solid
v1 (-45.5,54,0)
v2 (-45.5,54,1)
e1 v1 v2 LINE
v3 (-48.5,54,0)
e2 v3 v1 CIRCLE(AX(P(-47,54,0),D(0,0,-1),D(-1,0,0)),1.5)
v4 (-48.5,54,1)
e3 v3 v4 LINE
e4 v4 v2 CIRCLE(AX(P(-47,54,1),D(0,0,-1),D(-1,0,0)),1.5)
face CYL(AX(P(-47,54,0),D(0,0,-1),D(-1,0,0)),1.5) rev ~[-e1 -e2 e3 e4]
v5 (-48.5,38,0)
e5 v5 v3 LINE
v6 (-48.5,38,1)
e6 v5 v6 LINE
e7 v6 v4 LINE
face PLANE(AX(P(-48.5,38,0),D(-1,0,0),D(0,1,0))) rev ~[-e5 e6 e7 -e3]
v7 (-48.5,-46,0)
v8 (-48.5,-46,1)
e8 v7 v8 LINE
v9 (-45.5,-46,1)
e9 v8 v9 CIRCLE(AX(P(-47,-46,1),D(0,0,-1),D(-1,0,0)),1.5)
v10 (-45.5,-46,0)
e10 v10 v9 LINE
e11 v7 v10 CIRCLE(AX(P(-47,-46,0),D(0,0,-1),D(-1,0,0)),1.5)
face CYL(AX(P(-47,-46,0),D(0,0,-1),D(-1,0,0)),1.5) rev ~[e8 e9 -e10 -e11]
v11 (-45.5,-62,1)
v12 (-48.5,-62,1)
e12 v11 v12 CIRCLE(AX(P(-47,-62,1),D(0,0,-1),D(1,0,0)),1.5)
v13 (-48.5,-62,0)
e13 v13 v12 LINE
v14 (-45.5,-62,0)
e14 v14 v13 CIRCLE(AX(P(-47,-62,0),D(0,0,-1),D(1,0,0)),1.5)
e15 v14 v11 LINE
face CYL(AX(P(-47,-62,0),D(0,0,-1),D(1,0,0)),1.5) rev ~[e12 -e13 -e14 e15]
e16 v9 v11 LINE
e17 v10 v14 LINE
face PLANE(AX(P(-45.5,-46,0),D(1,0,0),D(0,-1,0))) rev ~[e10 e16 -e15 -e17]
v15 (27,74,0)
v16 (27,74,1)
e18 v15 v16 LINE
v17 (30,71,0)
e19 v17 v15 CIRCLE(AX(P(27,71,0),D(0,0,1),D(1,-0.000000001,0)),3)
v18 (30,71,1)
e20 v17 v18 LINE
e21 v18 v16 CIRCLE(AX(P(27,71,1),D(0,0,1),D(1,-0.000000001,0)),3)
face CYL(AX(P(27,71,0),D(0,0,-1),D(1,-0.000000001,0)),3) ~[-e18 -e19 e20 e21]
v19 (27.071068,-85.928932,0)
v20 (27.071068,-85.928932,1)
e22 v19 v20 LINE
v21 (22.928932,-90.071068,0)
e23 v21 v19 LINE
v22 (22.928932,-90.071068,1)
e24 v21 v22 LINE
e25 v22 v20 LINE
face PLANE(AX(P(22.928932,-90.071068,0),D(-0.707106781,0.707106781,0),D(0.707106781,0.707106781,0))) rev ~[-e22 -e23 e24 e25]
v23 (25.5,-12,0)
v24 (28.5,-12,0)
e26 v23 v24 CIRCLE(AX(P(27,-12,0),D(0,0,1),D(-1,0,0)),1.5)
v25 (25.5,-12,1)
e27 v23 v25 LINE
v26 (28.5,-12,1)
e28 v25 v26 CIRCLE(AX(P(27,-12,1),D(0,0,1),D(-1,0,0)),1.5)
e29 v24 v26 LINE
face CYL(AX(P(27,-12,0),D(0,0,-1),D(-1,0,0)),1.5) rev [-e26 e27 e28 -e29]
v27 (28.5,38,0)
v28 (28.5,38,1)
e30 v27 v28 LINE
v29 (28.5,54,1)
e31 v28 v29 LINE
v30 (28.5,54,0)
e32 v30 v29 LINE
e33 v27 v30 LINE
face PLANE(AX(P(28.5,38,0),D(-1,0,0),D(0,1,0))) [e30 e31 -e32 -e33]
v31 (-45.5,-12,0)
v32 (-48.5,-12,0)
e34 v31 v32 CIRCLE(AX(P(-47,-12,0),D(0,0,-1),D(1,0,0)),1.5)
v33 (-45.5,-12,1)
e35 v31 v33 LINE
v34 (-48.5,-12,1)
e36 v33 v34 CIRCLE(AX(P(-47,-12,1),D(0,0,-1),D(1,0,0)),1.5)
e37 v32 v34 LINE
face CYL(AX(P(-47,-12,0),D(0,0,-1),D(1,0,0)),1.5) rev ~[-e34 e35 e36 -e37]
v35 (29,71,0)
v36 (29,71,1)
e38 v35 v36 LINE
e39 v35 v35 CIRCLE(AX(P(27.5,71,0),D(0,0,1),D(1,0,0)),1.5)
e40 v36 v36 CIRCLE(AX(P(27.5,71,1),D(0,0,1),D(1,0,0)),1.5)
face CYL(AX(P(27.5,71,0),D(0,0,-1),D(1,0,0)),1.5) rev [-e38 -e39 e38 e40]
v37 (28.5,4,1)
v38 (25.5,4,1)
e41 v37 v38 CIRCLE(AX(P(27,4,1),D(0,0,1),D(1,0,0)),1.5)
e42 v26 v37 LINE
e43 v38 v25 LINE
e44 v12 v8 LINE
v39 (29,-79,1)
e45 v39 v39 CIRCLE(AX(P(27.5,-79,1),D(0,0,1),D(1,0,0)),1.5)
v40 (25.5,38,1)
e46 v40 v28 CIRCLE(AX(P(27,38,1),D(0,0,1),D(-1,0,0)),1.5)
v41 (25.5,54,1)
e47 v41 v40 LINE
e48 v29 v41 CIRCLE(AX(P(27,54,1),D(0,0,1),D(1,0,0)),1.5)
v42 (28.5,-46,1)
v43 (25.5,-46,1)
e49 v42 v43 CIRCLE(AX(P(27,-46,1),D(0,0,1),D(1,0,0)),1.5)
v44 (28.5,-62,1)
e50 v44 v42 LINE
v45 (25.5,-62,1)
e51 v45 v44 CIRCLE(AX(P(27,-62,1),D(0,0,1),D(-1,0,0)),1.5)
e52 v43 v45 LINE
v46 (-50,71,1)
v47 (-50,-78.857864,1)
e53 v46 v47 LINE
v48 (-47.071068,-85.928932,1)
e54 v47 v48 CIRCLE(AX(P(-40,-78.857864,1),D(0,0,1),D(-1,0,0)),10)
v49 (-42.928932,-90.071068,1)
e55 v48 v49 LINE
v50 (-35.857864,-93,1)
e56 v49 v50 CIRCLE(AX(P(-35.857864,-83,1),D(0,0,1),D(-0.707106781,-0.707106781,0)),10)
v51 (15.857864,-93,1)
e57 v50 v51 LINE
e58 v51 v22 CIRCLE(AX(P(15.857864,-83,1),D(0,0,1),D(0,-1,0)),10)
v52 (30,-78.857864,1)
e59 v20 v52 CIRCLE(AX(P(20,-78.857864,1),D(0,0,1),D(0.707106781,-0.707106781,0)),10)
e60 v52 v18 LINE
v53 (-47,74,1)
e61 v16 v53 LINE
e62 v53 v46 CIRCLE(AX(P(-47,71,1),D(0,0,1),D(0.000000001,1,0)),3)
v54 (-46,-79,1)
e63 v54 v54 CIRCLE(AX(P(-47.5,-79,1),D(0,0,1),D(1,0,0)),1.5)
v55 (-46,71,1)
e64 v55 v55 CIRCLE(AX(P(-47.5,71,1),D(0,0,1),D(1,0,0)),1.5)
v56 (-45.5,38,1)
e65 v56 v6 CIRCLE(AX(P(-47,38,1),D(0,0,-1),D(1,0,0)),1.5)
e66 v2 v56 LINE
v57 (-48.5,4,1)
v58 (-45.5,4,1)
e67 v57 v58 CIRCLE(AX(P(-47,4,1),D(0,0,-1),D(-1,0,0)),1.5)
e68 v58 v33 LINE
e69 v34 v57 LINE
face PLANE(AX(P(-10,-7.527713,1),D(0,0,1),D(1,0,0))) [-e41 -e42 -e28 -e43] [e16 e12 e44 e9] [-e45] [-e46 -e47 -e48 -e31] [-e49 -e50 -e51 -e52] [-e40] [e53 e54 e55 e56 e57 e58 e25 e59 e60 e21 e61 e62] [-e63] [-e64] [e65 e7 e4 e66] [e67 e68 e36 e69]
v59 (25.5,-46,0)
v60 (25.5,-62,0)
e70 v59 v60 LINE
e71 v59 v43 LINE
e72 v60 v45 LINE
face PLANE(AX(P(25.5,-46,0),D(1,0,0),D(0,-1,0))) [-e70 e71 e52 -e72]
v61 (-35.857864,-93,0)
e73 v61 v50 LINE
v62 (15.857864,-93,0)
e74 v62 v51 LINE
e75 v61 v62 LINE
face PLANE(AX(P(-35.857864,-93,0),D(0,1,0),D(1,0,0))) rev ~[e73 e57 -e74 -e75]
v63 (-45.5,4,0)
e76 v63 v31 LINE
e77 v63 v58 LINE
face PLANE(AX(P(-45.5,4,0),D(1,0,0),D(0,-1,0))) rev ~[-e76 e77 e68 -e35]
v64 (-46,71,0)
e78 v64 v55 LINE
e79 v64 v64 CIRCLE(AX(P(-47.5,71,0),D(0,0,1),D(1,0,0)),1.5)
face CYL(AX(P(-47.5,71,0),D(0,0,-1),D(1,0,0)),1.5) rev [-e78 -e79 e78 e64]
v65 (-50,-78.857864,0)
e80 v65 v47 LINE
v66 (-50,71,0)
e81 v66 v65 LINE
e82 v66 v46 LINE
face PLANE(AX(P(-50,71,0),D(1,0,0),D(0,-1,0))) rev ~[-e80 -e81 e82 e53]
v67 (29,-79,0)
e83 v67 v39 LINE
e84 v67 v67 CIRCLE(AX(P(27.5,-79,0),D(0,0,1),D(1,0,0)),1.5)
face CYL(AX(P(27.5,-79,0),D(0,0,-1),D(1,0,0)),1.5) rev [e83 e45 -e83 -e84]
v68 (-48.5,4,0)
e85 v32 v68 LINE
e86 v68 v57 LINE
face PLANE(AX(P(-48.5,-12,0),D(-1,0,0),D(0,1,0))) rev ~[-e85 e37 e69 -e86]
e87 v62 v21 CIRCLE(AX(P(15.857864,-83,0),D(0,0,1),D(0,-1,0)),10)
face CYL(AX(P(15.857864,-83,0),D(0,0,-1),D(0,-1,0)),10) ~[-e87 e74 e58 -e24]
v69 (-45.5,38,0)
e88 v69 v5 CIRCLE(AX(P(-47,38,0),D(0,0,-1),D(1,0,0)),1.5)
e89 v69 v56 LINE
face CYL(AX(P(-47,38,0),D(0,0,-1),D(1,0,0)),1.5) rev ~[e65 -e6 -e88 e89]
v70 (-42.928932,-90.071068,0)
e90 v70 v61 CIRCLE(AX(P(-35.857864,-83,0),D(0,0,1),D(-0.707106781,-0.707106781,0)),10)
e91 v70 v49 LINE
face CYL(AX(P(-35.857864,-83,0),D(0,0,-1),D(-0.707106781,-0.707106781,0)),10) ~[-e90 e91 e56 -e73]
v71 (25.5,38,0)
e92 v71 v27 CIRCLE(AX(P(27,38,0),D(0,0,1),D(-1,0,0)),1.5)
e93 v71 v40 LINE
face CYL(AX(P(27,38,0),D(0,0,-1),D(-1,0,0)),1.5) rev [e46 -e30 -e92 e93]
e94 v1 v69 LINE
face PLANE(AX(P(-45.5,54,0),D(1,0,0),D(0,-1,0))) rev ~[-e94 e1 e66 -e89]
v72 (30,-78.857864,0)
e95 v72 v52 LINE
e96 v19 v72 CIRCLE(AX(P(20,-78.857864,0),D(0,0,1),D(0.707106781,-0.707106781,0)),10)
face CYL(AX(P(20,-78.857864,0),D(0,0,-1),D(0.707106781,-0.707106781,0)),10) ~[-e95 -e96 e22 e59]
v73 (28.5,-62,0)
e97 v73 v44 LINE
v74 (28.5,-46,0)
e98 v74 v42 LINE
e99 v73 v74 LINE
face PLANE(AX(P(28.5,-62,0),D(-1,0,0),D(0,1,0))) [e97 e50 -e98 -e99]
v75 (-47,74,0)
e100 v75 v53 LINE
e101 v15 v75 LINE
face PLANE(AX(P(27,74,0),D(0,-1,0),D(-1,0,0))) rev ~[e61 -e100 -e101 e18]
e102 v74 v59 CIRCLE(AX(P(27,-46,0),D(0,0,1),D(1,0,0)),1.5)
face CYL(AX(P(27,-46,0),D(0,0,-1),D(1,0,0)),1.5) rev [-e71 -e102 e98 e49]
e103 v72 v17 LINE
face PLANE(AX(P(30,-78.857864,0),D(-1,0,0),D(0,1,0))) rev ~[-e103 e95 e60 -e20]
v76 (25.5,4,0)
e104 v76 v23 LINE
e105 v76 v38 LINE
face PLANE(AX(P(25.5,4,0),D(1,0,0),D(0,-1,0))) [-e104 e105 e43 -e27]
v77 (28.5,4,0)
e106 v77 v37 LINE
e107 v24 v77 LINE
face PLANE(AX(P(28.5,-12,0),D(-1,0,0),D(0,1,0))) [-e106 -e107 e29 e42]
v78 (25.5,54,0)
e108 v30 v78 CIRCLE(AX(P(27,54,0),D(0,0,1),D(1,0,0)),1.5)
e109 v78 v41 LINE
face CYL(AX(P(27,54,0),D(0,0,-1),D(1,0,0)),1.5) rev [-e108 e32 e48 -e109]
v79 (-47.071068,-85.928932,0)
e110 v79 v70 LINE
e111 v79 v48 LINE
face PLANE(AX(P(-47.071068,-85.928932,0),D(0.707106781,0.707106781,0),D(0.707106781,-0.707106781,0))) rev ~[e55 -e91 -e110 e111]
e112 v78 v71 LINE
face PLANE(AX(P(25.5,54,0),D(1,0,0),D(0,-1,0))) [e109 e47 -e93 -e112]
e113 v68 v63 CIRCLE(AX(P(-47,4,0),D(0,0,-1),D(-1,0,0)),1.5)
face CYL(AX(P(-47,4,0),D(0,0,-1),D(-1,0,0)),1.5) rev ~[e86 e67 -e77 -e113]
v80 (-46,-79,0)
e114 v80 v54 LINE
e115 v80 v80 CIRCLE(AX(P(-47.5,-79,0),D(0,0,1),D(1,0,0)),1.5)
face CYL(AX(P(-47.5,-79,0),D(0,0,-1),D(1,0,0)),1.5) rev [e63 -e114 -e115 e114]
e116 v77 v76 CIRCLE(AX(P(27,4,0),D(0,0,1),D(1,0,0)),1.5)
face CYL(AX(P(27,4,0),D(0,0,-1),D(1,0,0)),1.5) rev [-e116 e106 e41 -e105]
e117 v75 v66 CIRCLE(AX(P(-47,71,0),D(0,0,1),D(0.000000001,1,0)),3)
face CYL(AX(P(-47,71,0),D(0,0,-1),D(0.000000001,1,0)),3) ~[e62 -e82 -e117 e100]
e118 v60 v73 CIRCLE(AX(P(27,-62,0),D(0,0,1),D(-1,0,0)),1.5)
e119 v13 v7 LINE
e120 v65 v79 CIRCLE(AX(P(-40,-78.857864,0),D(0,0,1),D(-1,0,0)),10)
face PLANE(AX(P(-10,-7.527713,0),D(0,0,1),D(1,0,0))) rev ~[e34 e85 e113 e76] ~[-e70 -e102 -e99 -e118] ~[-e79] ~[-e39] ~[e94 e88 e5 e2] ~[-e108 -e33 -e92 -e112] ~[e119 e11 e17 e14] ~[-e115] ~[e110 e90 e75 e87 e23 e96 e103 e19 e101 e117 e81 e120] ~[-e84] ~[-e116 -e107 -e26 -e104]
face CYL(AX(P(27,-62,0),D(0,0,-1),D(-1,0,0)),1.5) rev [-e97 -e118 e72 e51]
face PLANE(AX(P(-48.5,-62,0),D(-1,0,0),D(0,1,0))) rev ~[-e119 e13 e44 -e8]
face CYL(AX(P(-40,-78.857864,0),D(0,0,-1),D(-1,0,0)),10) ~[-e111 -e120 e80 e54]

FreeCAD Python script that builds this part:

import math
import FreeCAD as App
import Part
import Sketcher
from FreeCAD import Vector

doc = App.newDocument("Part")
body = doc.addObject("PartDesign::Body", "Body")

# Sketch on XY plane
sketch1 = body.newObject("Sketcher::SketchObject", "Sketch")
sketch1.AttachmentSupport = (doc.getObject("XY_Plane"), [""])
sketch1.MapMode = "FlatFace"
sketch1.addGeometry(Part.LineSegment(Vector(-35.857864, -93, 0), Vector(15.857864, -93, 0)), False)
sketch1.addGeometry(Part.ArcOfCircle(Part.Circle(Vector(15.857864, -83, 0), Vector(0, 0, 1), 10), math.radians(-90), math.radians(-45)), False)
sketch1.addGeometry(Part.LineSegment(Vector(22.928932, -90.071068, 0), Vector(27.071068, -85.928932, 0)), False)
sketch1.addGeometry(Part.ArcOfCircle(Part.Circle(Vector(20, -78.857864, 0), Vector(0, 0, 1), 10), math.radians(-45), math.radians(0)), False)
sketch1.addGeometry(Part.LineSegment(Vector(30, -78.857864, 0), Vector(30, 71, 0)), False)
sketch1.addGeometry(Part.ArcOfCircle(Part.Circle(Vector(27, 71, 0), Vector(0, 0, 1), 3), math.radians(0), math.radians(90)), False)
sketch1.addGeometry(Part.LineSegment(Vector(27, 74, 0), Vector(-47, 74, 0)), False)
sketch1.addGeometry(Part.ArcOfCircle(Part.Circle(Vector(-47, 71, 0), Vector(0, 0, 1), 3), math.radians(90), math.radians(180)), False)
sketch1.addGeometry(Part.LineSegment(Vector(-50, 71, 0), Vector(-50, -78.857864, 0)), False)
sketch1.addGeometry(Part.ArcOfCircle(Part.Circle(Vector(-40, -78.857864, 0), Vector(0, 0, 1), 10), math.radians(180), math.radians(225)), False)
sketch1.addGeometry(Part.LineSegment(Vector(-47.071068, -85.928932, 0), Vector(-42.928932, -90.071068, 0)), False)
sketch1.addGeometry(Part.ArcOfCircle(Part.Circle(Vector(-35.857864, -83, 0), Vector(0, 0, 1), 10), math.radians(-135), math.radians(-90)), False)
sketch1.addGeometry(Part.Circle(Vector(-47.5, -79, 0), Vector(0, 0, 1), 1.5), False)
sketch1.addGeometry(Part.ArcOfCircle(Part.Circle(Vector(-47, -46, 0), Vector(0, 0, 1), 1.5), math.radians(0), math.radians(180)), False)
sketch1.addGeometry(Part.LineSegment(Vector(-45.5, -46, 0), Vector(-45.5, -62, 0)), False)
sketch1.addGeometry(Part.ArcOfCircle(Part.Circle(Vector(-47, -62, 0), Vector(0, 0, 1), 1.5), math.radians(180), math.radians(360)), False)
sketch1.addGeometry(Part.LineSegment(Vector(-48.5, -62, 0), Vector(-48.5, -46, 0)), False)
sketch1.addGeometry(Part.Circle(Vector(27.5, -79, 0), Vector(0, 0, 1), 1.5), False)
sketch1.addGeometry(Part.LineSegment(Vector(25.5, -62, 0), Vector(25.5, -46, 0)), False)
sketch1.addGeometry(Part.ArcOfCircle(Part.Circle(Vector(27, -46, 0), Vector(0, 0, 1), 1.5), math.radians(0), math.radians(180)), False)
sketch1.addGeometry(Part.LineSegment(Vector(28.5, -46, 0), Vector(28.5, -62, 0)), False)
sketch1.addGeometry(Part.ArcOfCircle(Part.Circle(Vector(27, -62, 0), Vector(0, 0, 1), 1.5), math.radians(180), math.radians(360)), False)
sketch1.addGeometry(Part.ArcOfCircle(Part.Circle(Vector(-47, -12, 0), Vector(0, 0, 1), 1.5), math.radians(180), math.radians(360)), False)
sketch1.addGeometry(Part.LineSegment(Vector(-48.5, -12, 0), Vector(-48.5, 4, 0)), False)
sketch1.addGeometry(Part.ArcOfCircle(Part.Circle(Vector(-47, 4, 0), Vector(0, 0, 1), 1.5), math.radians(0), math.radians(180)), False)
sketch1.addGeometry(Part.LineSegment(Vector(-45.5, 4, 0), Vector(-45.5, -12, 0)), False)
sketch1.addGeometry(Part.ArcOfCircle(Part.Circle(Vector(-47, 38, 0), Vector(0, 0, 1), 1.5), math.radians(180), math.radians(360)), False)
sketch1.addGeometry(Part.LineSegment(Vector(-48.5, 38, 0), Vector(-48.5, 54, 0)), False)
sketch1.addGeometry(Part.ArcOfCircle(Part.Circle(Vector(-47, 54, 0), Vector(0, 0, 1), 1.5), math.radians(0), math.radians(180)), False)
sketch1.addGeometry(Part.LineSegment(Vector(-45.5, 54, 0), Vector(-45.5, 38, 0)), False)
sketch1.addGeometry(Part.Circle(Vector(-47.5, 71, 0), Vector(0, 0, 1), 1.5), False)
sketch1.addGeometry(Part.LineSegment(Vector(28.5, 4, 0), Vector(28.5, -12, 0)), False)
sketch1.addGeometry(Part.ArcOfCircle(Part.Circle(Vector(27, -12, 0), Vector(0, 0, 1), 1.5), math.radians(180), math.radians(360)), False)
sketch1.addGeometry(Part.LineSegment(Vector(25.5, -12, 0), Vector(25.5, 4, 0)), False)
sketch1.addGeometry(Part.ArcOfCircle(Part.Circle(Vector(27, 4, 0), Vector(0, 0, 1), 1.5), math.radians(0), math.radians(180)), False)
sketch1.addGeometry(Part.LineSegment(Vector(28.5, 54, 0), Vector(28.5, 38, 0)), False)
sketch1.addGeometry(Part.ArcOfCircle(Part.Circle(Vector(27, 38, 0), Vector(0, 0, 1), 1.5), math.radians(180), math.radians(360)), False)
sketch1.addGeometry(Part.LineSegment(Vector(25.5, 38, 0), Vector(25.5, 54, 0)), False)
sketch1.addGeometry(Part.ArcOfCircle(Part.Circle(Vector(27, 54, 0), Vector(0, 0, 1), 1.5), math.radians(0), math.radians(180)), False)
sketch1.addGeometry(Part.Circle(Vector(27.5, 71, 0), Vector(0, 0, 1), 1.5), False)
sketch1.addConstraint(Sketcher.Constraint("Tangent", 0, 2, 1, 1))
sketch1.addConstraint(Sketcher.Constraint("Tangent", 1, 2, 2, 1))
sketch1.addConstraint(Sketcher.Constraint("Tangent", 2, 2, 3, 1))
sketch1.addConstraint(Sketcher.Constraint("Tangent", 3, 2, 4, 1))
sketch1.addConstraint(Sketcher.Constraint("Tangent", 4, 2, 5, 1))
sketch1.addConstraint(Sketcher.Constraint("Tangent", 5, 2, 6, 1))
sketch1.addConstraint(Sketcher.Constraint("Tangent", 6, 2, 7, 1))
sketch1.addConstraint(Sketcher.Constraint("Tangent", 7, 2, 8, 1))
sketch1.addConstraint(Sketcher.Constraint("Tangent", 8, 2, 9, 1))
sketch1.addConstraint(Sketcher.Constraint("Tangent", 9, 2, 10, 1))
sketch1.addConstraint(Sketcher.Constraint("Tangent", 10, 2, 11, 1))
sketch1.addConstraint(Sketcher.Constraint("Tangent", 11, 2, 0, 1))
sketch1.addConstraint(Sketcher.Constraint("Tangent", 13, 1, 14, 1))
sketch1.addConstraint(Sketcher.Constraint("Tangent", 14, 2, 15, 2))
sketch1.addConstraint(Sketcher.Constraint("Tangent", 15, 1, 16, 1))
sketch1.addConstraint(Sketcher.Constraint("Tangent", 16, 2, 13, 2))
sketch1.addConstraint(Sketcher.Constraint("Tangent", 18, 2, 19, 2))
sketch1.addConstraint(Sketcher.Constraint("Tangent", 19, 1, 20, 1))
sketch1.addConstraint(Sketcher.Constraint("Tangent", 20, 2, 21, 2))
sketch1.addConstraint(Sketcher.Constraint("Tangent", 21, 1, 18, 1))
sketch1.addConstraint(Sketcher.Constraint("Tangent", 22, 1, 23, 1))
sketch1.addConstraint(Sketcher.Constraint("Tangent", 23, 2, 24, 2))
sketch1.addConstraint(Sketcher.Constraint("Tangent", 24, 1, 25, 1))
sketch1.addConstraint(Sketcher.Constraint("Tangent", 25, 2, 22, 2))
sketch1.addConstraint(Sketcher.Constraint("Tangent", 26, 1, 27, 1))
sketch1.addConstraint(Sketcher.Constraint("Tangent", 27, 2, 28, 2))
sketch1.addConstraint(Sketcher.Constraint("Tangent", 28, 1, 29, 1))
sketch1.addConstraint(Sketcher.Constraint("Tangent", 29, 2, 26, 2))
sketch1.addConstraint(Sketcher.Constraint("Tangent", 31, 2, 32, 2))
sketch1.addConstraint(Sketcher.Constraint("Tangent", 32, 1, 33, 1))
sketch1.addConstraint(Sketcher.Constraint("Tangent", 33, 2, 34, 2))
sketch1.addConstraint(Sketcher.Constraint("Tangent", 34, 1, 31, 1))
sketch1.addConstraint(Sketcher.Constraint("Tangent", 35, 2, 36, 2))
sketch1.addConstraint(Sketcher.Constraint("Tangent", 36, 1, 37, 1))
sketch1.addConstraint(Sketcher.Constraint("Tangent", 37, 2, 38, 2))
sketch1.addConstraint(Sketcher.Constraint("Tangent", 38, 1, 35, 1))
sketch1.addConstraint(Sketcher.Constraint("Horizontal", 0))
sketch1.addConstraint(Sketcher.Constraint("Vertical", 4))
sketch1.addConstraint(Sketcher.Constraint("Horizontal", 6))
sketch1.addConstraint(Sketcher.Constraint("Vertical", 8))
sketch1.addConstraint(Sketcher.Constraint("Vertical", 14))
sketch1.addConstraint(Sketcher.Constraint("Vertical", 16))
sketch1.addConstraint(Sketcher.Constraint("Vertical", 18))
sketch1.addConstraint(Sketcher.Constraint("Vertical", 20))
sketch1.addConstraint(Sketcher.Constraint("Vertical", 23))
sketch1.addConstraint(Sketcher.Constraint("Vertical", 25))
sketch1.addConstraint(Sketcher.Constraint("Vertical", 27))
sketch1.addConstraint(Sketcher.Constraint("Vertical", 29))
sketch1.addConstraint(Sketcher.Constraint("Vertical", 31))
sketch1.addConstraint(Sketcher.Constraint("Vertical", 33))
sketch1.addConstraint(Sketcher.Constraint("Vertical", 35))
sketch1.addConstraint(Sketcher.Constraint("Vertical", 37))
sketch1.addConstraint(Sketcher.Constraint("Equal", 1, 3))
sketch1.addConstraint(Sketcher.Constraint("Equal", 5, 7))
sketch1.addConstraint(Sketcher.Constraint("Equal", 3, 9))
sketch1.addConstraint(Sketcher.Constraint("Equal", 9, 11))
sketch1.addConstraint(Sketcher.Constraint("Equal", 12, 13))
sketch1.addConstraint(Sketcher.Constraint("Equal", 15, 17))
sketch1.addConstraint(Sketcher.Constraint("Equal", 17, 19))
sketch1.addConstraint(Sketcher.Constraint("Equal", 21, 22))
sketch1.addConstraint(Sketcher.Constraint("Equal", 24, 26))
sketch1.addConstraint(Sketcher.Constraint("Equal", 28, 30))
sketch1.addConstraint(Sketcher.Constraint("Equal", 30, 32))
sketch1.addConstraint(Sketcher.Constraint("Equal", 34, 36))
sketch1.addConstraint(Sketcher.Constraint("Equal", 38, 39))
sketch1.addConstraint(Sketcher.Constraint("Perpendicular", 2, 10))
sketch1.addConstraint(Sketcher.Constraint("Horizontal", 3, 3, 9, 3))
sketch1.addConstraint(Sketcher.Constraint("Horizontal", 12, 3, 17, 3))
sketch1.addConstraint(Sketcher.Constraint("Horizontal", 13, 3, 19, 3))
sketch1.addConstraint(Sketcher.Constraint("Horizontal", 15, 3, 21, 3))
sketch1.addConstraint(Sketcher.Constraint("Horizontal", 7, 3, 30, 3))
sketch1.addConstraint(Sketcher.Constraint("Horizontal", 22, 3, 32, 3))
sketch1.addConstraint(Sketcher.Constraint("Horizontal", 24, 3, 34, 3))
sketch1.addConstraint(Sketcher.Constraint("Horizontal", 26, 3, 36, 3))
sketch1.addConstraint(Sketcher.Constraint("Horizontal", 28, 3, 38, 3))
sketch1.addConstraint(Sketcher.Constraint("Horizontal", 30, 3, 39, 3))
sketch1.addConstraint(Sketcher.Constraint("Horizontal", 2, 2, 9, 2))
sketch1.addConstraint(Sketcher.Constraint("Vertical", 7, 3, 13, 3))
sketch1.addConstraint(Sketcher.Constraint("Vertical", 5, 3, 19, 3))
sketch1.addConstraint(Sketcher.Constraint("Vertical", 15, 3, 22, 3))
sketch1.addConstraint(Sketcher.Constraint("Vertical", 24, 3, 26, 3))
sketch1.addConstraint(Sketcher.Constraint("Vertical", 12, 3, 30, 3))
sketch1.addConstraint(Sketcher.Constraint("Vertical", 21, 3, 32, 3))
sketch1.addConstraint(Sketcher.Constraint("Vertical", 34, 3, 36, 3))
sketch1.addConstraint(Sketcher.Constraint("Vertical", 17, 3, 39, 3))
sketch1.addConstraint(Sketcher.Constraint("Equal", 20, 23))
sketch1.addConstraint(Sketcher.Constraint("Equal", 25, 27))
sketch1.addConstraint(Sketcher.Constraint("Diameter", 12, 3.0))
sketch1.addConstraint(Sketcher.Constraint("Radius", 1, 10.0))
sketch1.addConstraint(Sketcher.Constraint("Radius", 5, 3.0))
sketch1.addConstraint(Sketcher.Constraint("DistanceX", 6, 2, 6, 1, 74.0))
sketch1.addConstraint(Sketcher.Constraint("DistanceY", 14, 2, 14, 1, 16.0))
sketch1.addConstraint(Sketcher.Constraint("DistanceY", 1, 3, -1, 1, 83.0))
sketch1.addConstraint(Sketcher.Constraint("DistanceX", -1, 1, 3, 3, 20.0))
sketch1.addConstraint(Sketcher.Constraint("DistanceY", -1, 1, 5, 3, 71.0))
sketch1.addConstraint(Sketcher.Constraint("DistanceY", 12, 3, -1, 1, 79.0))
sketch1.addConstraint(Sketcher.Constraint("DistanceY", 13, 3, -1, 1, 46.0))
sketch1.addConstraint(Sketcher.Constraint("DistanceY", 22, 3, -1, 1, 12.0))
sketch1.addConstraint(Sketcher.Constraint("DistanceY", -1, 1, 26, 3, 38.0))
sketch1.addConstraint(Sketcher.Constraint("DistanceX", 12, 3, 17, 3, 75.0))
sketch1.addConstraint(Sketcher.Constraint("DistanceX", 12, 3, 13, 1, 2.0))
sketch1.addConstraint(Sketcher.Constraint("DistanceX", 0, 1, 0, 2, 51.715729))
pad1 = body.newObject("PartDesign::Pad", "Pad")
pad1.Profile = sketch1
pad1.Length = 1

doc.recompute()
